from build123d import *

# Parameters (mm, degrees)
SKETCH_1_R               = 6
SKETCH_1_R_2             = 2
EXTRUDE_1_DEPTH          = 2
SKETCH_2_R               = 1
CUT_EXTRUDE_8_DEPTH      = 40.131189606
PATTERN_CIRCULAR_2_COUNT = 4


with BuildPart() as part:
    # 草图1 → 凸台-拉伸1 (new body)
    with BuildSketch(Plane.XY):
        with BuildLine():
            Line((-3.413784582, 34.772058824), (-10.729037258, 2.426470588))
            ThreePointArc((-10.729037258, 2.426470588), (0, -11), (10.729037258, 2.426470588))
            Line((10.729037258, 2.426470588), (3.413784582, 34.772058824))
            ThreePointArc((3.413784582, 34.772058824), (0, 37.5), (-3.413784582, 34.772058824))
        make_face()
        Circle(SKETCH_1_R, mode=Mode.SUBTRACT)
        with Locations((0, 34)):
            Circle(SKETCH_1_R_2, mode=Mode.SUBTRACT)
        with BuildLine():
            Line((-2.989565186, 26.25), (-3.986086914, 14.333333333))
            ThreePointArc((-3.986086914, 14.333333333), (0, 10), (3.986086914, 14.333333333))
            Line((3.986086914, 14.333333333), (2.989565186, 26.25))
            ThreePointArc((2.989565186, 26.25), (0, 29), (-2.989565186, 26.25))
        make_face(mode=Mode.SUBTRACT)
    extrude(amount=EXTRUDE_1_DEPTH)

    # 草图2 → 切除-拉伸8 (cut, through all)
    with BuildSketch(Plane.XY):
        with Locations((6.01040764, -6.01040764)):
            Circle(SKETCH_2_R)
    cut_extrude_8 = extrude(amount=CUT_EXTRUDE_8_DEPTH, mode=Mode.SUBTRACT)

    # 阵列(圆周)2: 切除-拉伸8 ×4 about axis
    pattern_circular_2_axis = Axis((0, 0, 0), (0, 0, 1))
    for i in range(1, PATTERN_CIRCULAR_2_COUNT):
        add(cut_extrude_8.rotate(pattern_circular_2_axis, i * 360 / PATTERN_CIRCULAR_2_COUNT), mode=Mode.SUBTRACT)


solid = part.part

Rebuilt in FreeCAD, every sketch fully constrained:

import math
import FreeCAD as App
import Part
import Sketcher

V = App.Vector

doc = App.newDocument("Part")
params = doc.addObject("Spreadsheet::Sheet", "Params")
for row, (alias, value) in enumerate([
    ("sketch1_diameter", "12 mm"),
    ("sketch1_diameter2", "4 mm"),
    ("sketch1_radius", "11 mm"),
    ("sketch1_radius2", "3 mm"),
    ("sketch1_radius3", "4 mm"),
    ("pad1_length", "2 mm"),
    ("sketch2_diameter", "2 mm"),
], start=1):
    params.set(f"A{row}", alias)
    params.set(f"B{row}", "=" + value)
    params.setAlias(f"B{row}", alias)

body = doc.addObject("PartDesign::Body", "Body")

# Sketch on XY plane
sketch1 = body.newObject("Sketcher::SketchObject", "Sketch")
sketch1.AttachmentSupport = (doc.getObject("XY_Plane"), [""])
sketch1.MapMode = "FlatFace"
sketch1.addGeometry(Part.LineSegment(V(-3.4, 34.8, 0), V(-10.7, 2.4, 0)), False)
sketch1.addGeometry(Part.ArcOfCircle(Part.Circle(V(0, 0, 0), V(0, 0, 1), 11), math.radians(167), math.radians(373)), False)
sketch1.addGeometry(Part.LineSegment(V(10.7, 2.4, 0), V(3.4, 34.8, 0)), False)
sketch1.addGeometry(Part.ArcOfCircle(Part.Circle(V(0, 34, 0), V(0, 0, 1), 3.5), math.radians(13), math.radians(167)), False)
sketch1.addGeometry(Part.Circle(V(0, 0, 0), V(0, 0, 1), 6), False)
sketch1.addGeometry(Part.LineSegment(V(-4, 14.3, 0), V(-3, 26.2, 0)), False)
sketch1.addGeometry(Part.ArcOfCircle(Part.Circle(V(0, 26, 0), V(0, 0, 1), 3), math.radians(5), math.radians(175)), False)
sketch1.addGeometry(Part.LineSegment(V(3, 26.2, 0), V(4, 14.3, 0)), False)
sketch1.addGeometry(Part.ArcOfCircle(Part.Circle(V(0, 14, 0), V(0, 0, 1), 4), math.radians(175), math.radians(365)), False)
sketch1.addGeometry(Part.Circle(V(0, 34, 0), V(0, 0, 1), 2), False)
sketch1.addConstraint(Sketcher.Constraint("Tangent", 0, 2, 1, 1))
sketch1.addConstraint(Sketcher.Constraint("Tangent", 1, 2, 2, 1))
sketch1.addConstraint(Sketcher.Constraint("Tangent", 2, 2, 3, 1))
sketch1.addConstraint(Sketcher.Constraint("Tangent", 3, 2, 0, 1))
sketch1.addConstraint(Sketcher.Constraint("Tangent", 5, 2, 6, 2))
sketch1.addConstraint(Sketcher.Constraint("Tangent", 6, 1, 7, 1))
sketch1.addConstraint(Sketcher.Constraint("Tangent", 7, 2, 8, 2))
sketch1.addConstraint(Sketcher.Constraint("Tangent", 8, 1, 5, 1))
sketch1.addConstraint(Sketcher.Constraint("Coincident", 1, 3, -1, 1))
sketch1.addConstraint(Sketcher.Constraint("Coincident", 4, 3, -1, 1))
sketch1.addConstraint(Sketcher.Constraint("Coincident", 9, 3, 3, 3))
sketch1.addConstraint(Sketcher.Constraint("Symmetric", 5, 2, 6, 1, -2))
sketch1.addConstraint(Sketcher.Constraint("PointOnObject", 3, 3, -2))
sketch1.addConstraint(Sketcher.Constraint("Diameter", 4, 12.0))
sketch1.addConstraint(Sketcher.Constraint("Diameter", 9, 4.0))
sketch1.addConstraint(Sketcher.Constraint("Radius", 1, 11.0))
sketch1.addConstraint(Sketcher.Constraint("Radius", 6, 3.0))
sketch1.addConstraint(Sketcher.Constraint("Radius", 8, 4.0))
sketch1.addConstraint(Sketcher.Constraint("Radius", 3, 3.5))
sketch1.addConstraint(Sketcher.Constraint("DistanceY", -1, 1, 3, 3, 34.0))
sketch1.addConstraint(Sketcher.Constraint("DistanceY", -1, 1, 6, 3, 26.0))
sketch1.addConstraint(Sketcher.Constraint("DistanceY", -1, 1, 8, 3, 14.0))
sketch1.setExpression("Constraints[13]", "Params.sketch1_diameter")
sketch1.setExpression("Constraints[14]", "Params.sketch1_diameter2")
sketch1.setExpression("Constraints[15]", "Params.sketch1_radius")
sketch1.setExpression("Constraints[16]", "Params.sketch1_radius2")
sketch1.setExpression("Constraints[17]", "Params.sketch1_radius3")
pad1 = body.newObject("PartDesign::Pad", "Pad")
pad1.Profile = sketch1
pad1.setExpression("Length", "Params.pad1_length")

# Sketch on XY plane
sketch2 = body.newObject("Sketcher::SketchObject", "Sketch001")
sketch2.AttachmentSupport = (doc.getObject("XY_Plane"), [""])
sketch2.MapMode = "FlatFace"
sketch2.addGeometry(Part.Circle(V(6, -6, 0), V(0, 0, 1), 1), False)
sketch2.addConstraint(Sketcher.Constraint("Diameter", 0, 2.0))
sketch2.addConstraint(Sketcher.Constraint("DistanceX", -1, 1, 0, 3, 6.010408))
sketch2.addConstraint(Sketcher.Constraint("DistanceY", 0, 3, -1, 1, 6.010408))
sketch2.setExpression("Constraints[0]", "Params.sketch2_diameter")
pocket1 = body.newObject("PartDesign::Pocket", "Pocket")
pocket1.Profile = sketch2
pocket1.Type = "ThroughAll"
pocket1.Reversed = True
doc.recompute()

polarpattern = body.newObject("PartDesign::PolarPattern", "PolarPattern")
polarpattern.Originals = [pocket1]
polarpattern.Axis = (doc.getObject("Z_Axis"), [""])
polarpattern.Angle = 360
polarpattern.Occurrences = 4
body.Tip = polarpattern

doc.recompute()
